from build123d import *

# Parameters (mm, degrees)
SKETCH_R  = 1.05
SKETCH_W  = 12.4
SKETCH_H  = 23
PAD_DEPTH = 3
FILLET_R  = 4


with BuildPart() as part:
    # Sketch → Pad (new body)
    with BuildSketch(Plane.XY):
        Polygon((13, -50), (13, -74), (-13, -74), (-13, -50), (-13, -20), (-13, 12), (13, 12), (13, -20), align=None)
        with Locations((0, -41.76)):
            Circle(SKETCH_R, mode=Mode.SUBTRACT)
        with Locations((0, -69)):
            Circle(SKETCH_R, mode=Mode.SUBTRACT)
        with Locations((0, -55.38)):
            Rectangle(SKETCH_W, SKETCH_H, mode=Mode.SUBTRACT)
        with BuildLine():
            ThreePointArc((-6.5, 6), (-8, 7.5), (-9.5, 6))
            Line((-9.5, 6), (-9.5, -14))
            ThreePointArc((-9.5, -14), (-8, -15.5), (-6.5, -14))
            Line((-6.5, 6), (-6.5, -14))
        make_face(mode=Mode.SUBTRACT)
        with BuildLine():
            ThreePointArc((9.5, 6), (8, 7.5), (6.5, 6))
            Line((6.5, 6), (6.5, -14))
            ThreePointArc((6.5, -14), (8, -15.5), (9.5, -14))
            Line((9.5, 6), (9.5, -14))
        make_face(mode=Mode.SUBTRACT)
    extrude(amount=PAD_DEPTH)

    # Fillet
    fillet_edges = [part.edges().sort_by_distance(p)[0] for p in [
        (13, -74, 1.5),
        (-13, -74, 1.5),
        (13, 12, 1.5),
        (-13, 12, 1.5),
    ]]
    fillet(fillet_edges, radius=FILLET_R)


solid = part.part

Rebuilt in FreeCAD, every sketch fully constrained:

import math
import FreeCAD as App
import Part
import Sketcher

V = App.Vector
Q = App.Units.Quantity


def edges_at(feature, points):
    """Names of the edges that pass closest to the given points."""
    edges = feature.Shape.Edges
    near = lambda p: min(range(len(edges)), key=lambda i: edges[i].distToShape(Part.Vertex(*p))[0])
    return sorted({f"Edge{near(p) + 1}" for p in points})


def add_polygon(sketch, points):
    """Adds a closed chain of lines whose ends are joined by coincident constraints."""
    first, n = sketch.GeometryCount, len(points)
    for a, b in zip(points, points[1:] + points[:1]):
        sketch.addGeometry(Part.LineSegment(App.Vector(*a, 0), App.Vector(*b, 0)), False)
    for i in range(n):
        sketch.addConstraint(Sketcher.Constraint("Coincident", first + i, 2, first + (i + 1) % n, 1))

doc = App.newDocument("Part")
body = doc.addObject("PartDesign::Body", "Body")

# Sketch on XY plane
sketch1 = body.newObject("Sketcher::SketchObject", "Sketch")
sketch1.AttachmentSupport = (doc.getObject("XY_Plane"), [""])
sketch1.MapMode = "FlatFace"
add_polygon(sketch1, [(13, -74), (13, 12), (-13, 12), (-13, -74)])  # lines 0-3
sketch1.addGeometry(Part.Circle(V(0, -69, 0), V(0, 0, 1), 1.1), False)  # 4
add_polygon(sketch1, [(-6.2, -66.9), (-6.2, -43.9), (6.2, -43.9), (6.2, -66.9)])  # lines 5-8
sketch1.addGeometry(Part.Circle(V(0, -41.8, 0), V(0, 0, 1), 1.1), False)  # 9
sketch1.addGeometry(Part.LineSegment(V(9.5, 6, 0), V(9.5, -14, 0)), False)  # 10
sketch1.addGeometry(Part.ArcOfCircle(Part.Circle(V(8, -14, 0), V(0, 0, 1), 1.5), math.radians(180), math.radians(360)), False)  # 11
sketch1.addGeometry(Part.LineSegment(V(6.5, -14, 0), V(6.5, 6, 0)), False)  # 12
sketch1.addGeometry(Part.ArcOfCircle(Part.Circle(V(8, 6, 0), V(0, 0, 1), 1.5), math.radians(0), math.radians(180)), False)  # 13
sketch1.addGeometry(Part.LineSegment(V(-6.5, 6, 0), V(-6.5, -14, 0)), False)  # 14
sketch1.addGeometry(Part.ArcOfCircle(Part.Circle(V(-8, -14, 0), V(0, 0, 1), 1.5), math.radians(180), math.radians(360)), False)  # 15
sketch1.addGeometry(Part.LineSegment(V(-9.5, -14, 0), V(-9.5, 6, 0)), False)  # 16
sketch1.addGeometry(Part.ArcOfCircle(Part.Circle(V(-8, 6, 0), V(0, 0, 1), 1.5), math.radians(0), math.radians(180)), False)  # 17
sketch1.addConstraint([
    Sketcher.Constraint("Tangent", 10, 2, 11, 2),
    Sketcher.Constraint("Tangent", 11, 1, 12, 1),
    Sketcher.Constraint("Tangent", 12, 2, 13, 2),
    Sketcher.Constraint("Tangent", 13, 1, 10, 1),
    Sketcher.Constraint("Tangent", 14, 2, 15, 2),
    Sketcher.Constraint("Tangent", 15, 1, 16, 1),
    Sketcher.Constraint("Tangent", 16, 2, 17, 2),
    Sketcher.Constraint("Tangent", 17, 1, 14, 1),
    Sketcher.Constraint("Vertical", 0),
    Sketcher.Constraint("Horizontal", 1),
    Sketcher.Constraint("Vertical", 2),
    Sketcher.Constraint("Horizontal", 3),
    Sketcher.Constraint("Vertical", 5),
    Sketcher.Constraint("Horizontal", 6),
    Sketcher.Constraint("Vertical", 7),
    Sketcher.Constraint("Horizontal", 8),
    Sketcher.Constraint("Vertical", 10),
    Sketcher.Constraint("Vertical", 12),
    Sketcher.Constraint("Vertical", 14),
    Sketcher.Constraint("Vertical", 16),
    Sketcher.Constraint("Equal", 4, 9),
    Sketcher.Constraint("Equal", 13, 15),
    Sketcher.Constraint("Symmetric", 11, 3, 15, 3, -2),
    Sketcher.Constraint("PointOnObject", 4, 3, -2),
    Sketcher.Constraint("PointOnObject", 9, 3, -2),
    Sketcher.Constraint("Horizontal", 13, 3, 17, 3),
    Sketcher.Constraint("Diameter", 4, Q("2.1 mm")),
    Sketcher.Constraint("Radius", 11, Q("1.5 mm")),
    Sketcher.Constraint("DistanceX", 1, 2, 1, 1, Q("26 mm")),
    Sketcher.Constraint("DistanceY", 0, 1, 0, 2, Q("86 mm")),
    Sketcher.Constraint("DistanceY", 5, 1, 5, 2, Q("23 mm")),
    Sketcher.Constraint("DistanceY", 10, 2, 10, 1, Q("20 mm")),
    Sketcher.Constraint("DistanceX", 6, 1, 6, 2, Q("12.4 mm")),
    Sketcher.Constraint("DistanceY", 4, 3, -1, 1, Q("69 mm")),
    Sketcher.Constraint("DistanceX", -1, 1, 11, 3, Q("8 mm")),
    Sketcher.Constraint("DistanceY", 11, 3, -1, 1, Q("14 mm")),
    Sketcher.Constraint("DistanceX", -1, 1, 0, 2, Q("13 mm")),
    Sketcher.Constraint("DistanceY", -1, 1, 0, 2, Q("12 mm")),
    Sketcher.Constraint("DistanceX", 5, 2, -1, 1, Q("6.2 mm")),
    Sketcher.Constraint("DistanceY", 9, 3, -1, 1, Q("41.76 mm")),
    Sketcher.Constraint("DistanceY", 5, 2, -1, 1, Q("43.88 mm")),
])
pad1 = body.newObject("PartDesign::Pad", "Pad")
pad1.Profile = sketch1
pad1.Length = 3
doc.recompute()

fillet = body.newObject("PartDesign::Fillet", "Fillet")
fillet.Base = (pad1, edges_at(pad1, [
    (13, -74, 1.5),
    (-13, -74, 1.5),
    (13, 12, 1.5),
    (-13, 12, 1.5),
]))
fillet.Radius = 4

doc.recompute()
